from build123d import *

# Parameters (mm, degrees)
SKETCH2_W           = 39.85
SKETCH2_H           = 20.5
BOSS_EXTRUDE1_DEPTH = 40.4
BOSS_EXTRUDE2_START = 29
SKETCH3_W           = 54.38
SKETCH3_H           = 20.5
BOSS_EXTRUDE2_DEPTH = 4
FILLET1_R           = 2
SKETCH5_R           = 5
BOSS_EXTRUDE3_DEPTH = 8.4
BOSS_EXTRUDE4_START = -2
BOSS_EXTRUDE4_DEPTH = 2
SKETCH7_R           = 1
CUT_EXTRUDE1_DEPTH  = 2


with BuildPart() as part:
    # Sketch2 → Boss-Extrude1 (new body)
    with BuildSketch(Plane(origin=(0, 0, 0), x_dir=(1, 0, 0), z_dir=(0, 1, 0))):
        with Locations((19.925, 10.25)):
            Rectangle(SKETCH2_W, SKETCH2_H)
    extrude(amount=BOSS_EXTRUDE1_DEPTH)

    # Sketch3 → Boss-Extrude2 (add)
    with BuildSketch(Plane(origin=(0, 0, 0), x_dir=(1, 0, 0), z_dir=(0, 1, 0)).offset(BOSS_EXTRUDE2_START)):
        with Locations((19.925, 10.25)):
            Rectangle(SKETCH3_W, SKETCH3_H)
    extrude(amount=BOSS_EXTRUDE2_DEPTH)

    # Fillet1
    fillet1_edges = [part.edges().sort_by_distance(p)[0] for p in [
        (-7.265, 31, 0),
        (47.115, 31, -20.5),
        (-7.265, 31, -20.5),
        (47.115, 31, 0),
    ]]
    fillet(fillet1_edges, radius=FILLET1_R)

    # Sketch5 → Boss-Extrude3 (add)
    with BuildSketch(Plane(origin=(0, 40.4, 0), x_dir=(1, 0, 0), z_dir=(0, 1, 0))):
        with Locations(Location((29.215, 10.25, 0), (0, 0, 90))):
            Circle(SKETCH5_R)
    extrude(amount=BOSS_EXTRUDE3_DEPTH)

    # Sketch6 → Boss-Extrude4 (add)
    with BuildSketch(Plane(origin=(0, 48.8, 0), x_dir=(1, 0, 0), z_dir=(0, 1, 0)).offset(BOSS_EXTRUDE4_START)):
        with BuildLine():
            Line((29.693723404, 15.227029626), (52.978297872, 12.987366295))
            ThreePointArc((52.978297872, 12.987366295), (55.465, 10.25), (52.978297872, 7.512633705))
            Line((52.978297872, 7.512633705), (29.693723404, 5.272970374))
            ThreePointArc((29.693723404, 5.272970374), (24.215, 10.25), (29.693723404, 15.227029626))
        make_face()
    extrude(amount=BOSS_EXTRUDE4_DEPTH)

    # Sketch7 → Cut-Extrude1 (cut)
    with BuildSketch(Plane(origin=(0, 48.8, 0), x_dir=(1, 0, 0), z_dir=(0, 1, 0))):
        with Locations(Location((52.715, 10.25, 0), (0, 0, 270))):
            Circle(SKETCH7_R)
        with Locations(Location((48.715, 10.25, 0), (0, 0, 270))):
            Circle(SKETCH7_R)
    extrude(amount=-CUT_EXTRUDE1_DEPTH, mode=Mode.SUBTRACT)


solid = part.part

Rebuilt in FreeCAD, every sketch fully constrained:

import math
import FreeCAD as App
import Part
import Sketcher


def edges_at(feature, points):
    """Names of the edges that pass closest to the given points."""
    edges = feature.Shape.Edges
    near = lambda p: min(range(len(edges)), key=lambda i: edges[i].distToShape(Part.Vertex(*p))[0])
    return sorted({f"Edge{near(p) + 1}" for p in points})

doc = App.newDocument("Part")
body = doc.addObject("PartDesign::Body", "Body")

sketch1 = body.newObject("Sketcher::SketchObject", "Sketch")
sketch1.AttachmentSupport = (doc.getObject("XZ_Plane"), [""])
sketch1.MapMode = "FlatFace"
sketch1.addGeometry(Part.LineSegment(App.Vector(0, -20.5, 0), App.Vector(0, 0, 0)), False)
sketch1.addGeometry(Part.LineSegment(App.Vector(0, 0, 0), App.Vector(39.85, 0, 0)), False)
sketch1.addGeometry(Part.LineSegment(App.Vector(39.85, 0, 0), App.Vector(39.85, -20.5, 0)), False)
sketch1.addGeometry(Part.LineSegment(App.Vector(39.85, -20.5, 0), App.Vector(0, -20.5, 0)), False)
sketch1.addConstraint(Sketcher.Constraint("Coincident", 0, 2, 1, 1))
sketch1.addConstraint(Sketcher.Constraint("Coincident", 1, 2, 2, 1))
sketch1.addConstraint(Sketcher.Constraint("Coincident", 2, 2, 3, 1))
sketch1.addConstraint(Sketcher.Constraint("Coincident", 3, 2, 0, 1))
sketch1.addConstraint(Sketcher.Constraint("Vertical", 0))
sketch1.addConstraint(Sketcher.Constraint("Horizontal", 1))
sketch1.addConstraint(Sketcher.Constraint("Vertical", 2))
sketch1.addConstraint(Sketcher.Constraint("Horizontal", 3))
sketch1.addConstraint(Sketcher.Constraint("Coincident", 0, 2, -1, 1))
sketch1.addConstraint(Sketcher.Constraint("DistanceY", 0, 1, 0, 2, 20.5))
sketch1.addConstraint(Sketcher.Constraint("DistanceX", 1, 1, 1, 2, 39.85))
pad1 = body.newObject("PartDesign::Pad", "Pad")
pad1.Profile = sketch1
pad1.Length = 40.4
pad1.Reversed = True

sketch2 = body.newObject("Sketcher::SketchObject", "Sketch001")
sketch2.AttachmentSupport = (doc.getObject("XZ_Plane"), [""])
sketch2.MapMode = "FlatFace"
sketch2.AttachmentOffset = App.Placement(App.Vector(0, 0, -29), App.Rotation())
sketch2.addGeometry(Part.LineSegment(App.Vector(-7.265, -20.5, 0), App.Vector(-7.265, 0, 0)), False)
sketch2.addGeometry(Part.LineSegment(App.Vector(-7.265, 0, 0), App.Vector(47.115, 0, 0)), False)
sketch2.addGeometry(Part.LineSegment(App.Vector(47.115, 0, 0), App.Vector(47.115, -20.5, 0)), False)
sketch2.addGeometry(Part.LineSegment(App.Vector(47.115, -20.5, 0), App.Vector(-7.265, -20.5, 0)), False)
sketch2.addConstraint(Sketcher.Constraint("Coincident", 0, 2, 1, 1))
sketch2.addConstraint(Sketcher.Constraint("Coincident", 1, 2, 2, 1))
sketch2.addConstraint(Sketcher.Constraint("Coincident", 2, 2, 3, 1))
sketch2.addConstraint(Sketcher.Constraint("Coincident", 3, 2, 0, 1))
sketch2.addConstraint(Sketcher.Constraint("Vertical", 0))
sketch2.addConstraint(Sketcher.Constraint("Horizontal", 1))
sketch2.addConstraint(Sketcher.Constraint("Vertical", 2))
sketch2.addConstraint(Sketcher.Constraint("Horizontal", 3))
sketch2.addConstraint(Sketcher.Constraint("PointOnObject", 0, 2, -1))
sketch2.addConstraint(Sketcher.Constraint("DistanceY", 0, 1, 0, 2, 20.5))
sketch2.addConstraint(Sketcher.Constraint("DistanceX", 1, 1, 1, 2, 54.38))
sketch2.addConstraint(Sketcher.Constraint("DistanceX", 0, 2, -1, 1, 7.265))
pad2 = body.newObject("PartDesign::Pad", "Pad001")
pad2.Profile = sketch2
pad2.Length = 4
pad2.Reversed = True
doc.recompute()

fillet = body.newObject("PartDesign::Fillet", "Fillet")
fillet.Base = (pad2, edges_at(pad2, [
    (-7.265, 31, 0),
    (47.115, 31, -20.5),
    (-7.265, 31, -20.5),
    (47.115, 31, 0),
]))
fillet.Radius = 2

sketch3 = body.newObject("Sketcher::SketchObject", "Sketch002")
sketch3.AttachmentSupport = (doc.getObject("XZ_Plane"), [""])
sketch3.MapMode = "FlatFace"
sketch3.AttachmentOffset = App.Placement(App.Vector(0, 0, -40.4), App.Rotation())
sketch3.addGeometry(Part.Circle(App.Vector(29.215, -10.25, 0), App.Vector(0, 0, 1), 5), False)
sketch3.addConstraint(Sketcher.Constraint("Diameter", 0, 10.0))
sketch3.addConstraint(Sketcher.Constraint("DistanceY", 0, 3, -1, 1, 10.25))
sketch3.addConstraint(Sketcher.Constraint("DistanceX", -1, 1, 0, 3, 29.215))
pad3 = body.newObject("PartDesign::Pad", "Pad002")
pad3.Profile = sketch3
pad3.Length = 8.4
pad3.Reversed = True

sketch4 = body.newObject("Sketcher::SketchObject", "Sketch003")
sketch4.AttachmentSupport = (doc.getObject("XZ_Plane"), [""])
sketch4.MapMode = "FlatFace"
sketch4.AttachmentOffset = App.Placement(App.Vector(0, 0, -46.8), App.Rotation())
sketch4.addGeometry(Part.LineSegment(App.Vector(52.978298, -12.987366, 0), App.Vector(29.693723, -15.22703, 0)), False)
sketch4.addGeometry(Part.ArcOfCircle(Part.Circle(App.Vector(29.215, -10.25, 0), App.Vector(0, 0, 1), 5), math.radians(84.505818), math.radians(275.494182)), False)
sketch4.addGeometry(Part.LineSegment(App.Vector(29.693723, -5.27297, 0), App.Vector(52.978298, -7.512634, 0)), False)
sketch4.addGeometry(Part.ArcOfCircle(Part.Circle(App.Vector(52.715, -10.25, 0), App.Vector(0, 0, 1), 2.75), math.radians(-84.505818), math.radians(84.505818)), False)
sketch4.addConstraint(Sketcher.Constraint("Tangent", 0, 2, 1, 2))
sketch4.addConstraint(Sketcher.Constraint("Tangent", 1, 1, 2, 1))
sketch4.addConstraint(Sketcher.Constraint("Tangent", 2, 2, 3, 2))
sketch4.addConstraint(Sketcher.Constraint("Tangent", 3, 1, 0, 1))
sketch4.addConstraint(Sketcher.Constraint("Horizontal", 1, 3, 3, 3))
sketch4.addConstraint(Sketcher.Constraint("Radius", 1, 5.0))
sketch4.addConstraint(Sketcher.Constraint("Radius", 3, 2.75))
sketch4.addConstraint(Sketcher.Constraint("DistanceX", 1, 3, 3, 3, 23.5))
sketch4.addConstraint(Sketcher.Constraint("DistanceY", 1, 3, -1, 1, 10.25))
sketch4.addConstraint(Sketcher.Constraint("DistanceX", -1, 1, 1, 3, 29.215))
pad4 = body.newObject("PartDesign::Pad", "Pad003")
pad4.Profile = sketch4
pad4.Length = 2
pad4.Reversed = True

sketch5 = body.newObject("Sketcher::SketchObject", "Sketch004")
sketch5.AttachmentSupport = (doc.getObject("XZ_Plane"), [""])
sketch5.MapMode = "FlatFace"
sketch5.AttachmentOffset = App.Placement(App.Vector(0, 0, -48.8), App.Rotation())
sketch5.addGeometry(Part.Circle(App.Vector(52.715, -10.25, 0), App.Vector(0, 0, 1), 1), False)
sketch5.addGeometry(Part.Circle(App.Vector(48.715, -10.25, 0), App.Vector(0, 0, 1), 1), False)
sketch5.addConstraint(Sketcher.Constraint("Equal", 0, 1))
sketch5.addConstraint(Sketcher.Constraint("Horizontal", 0, 3, 1, 3))
sketch5.addConstraint(Sketcher.Constraint("Diameter", 0, 2.0))
sketch5.addConstraint(Sketcher.Constraint("DistanceX", 1, 3, 0, 3, 4.0))
sketch5.addConstraint(Sketcher.Constraint("DistanceY", 0, 3, -1, 1, 10.25))
sketch5.addConstraint(Sketcher.Constraint("DistanceX", -1, 1, 0, 3, 52.715))
pocket1 = body.newObject("PartDesign::Pocket", "Pocket")
pocket1.Profile = sketch5
pocket1.Length = 2
pocket1.Reversed = True

doc.recompute()
